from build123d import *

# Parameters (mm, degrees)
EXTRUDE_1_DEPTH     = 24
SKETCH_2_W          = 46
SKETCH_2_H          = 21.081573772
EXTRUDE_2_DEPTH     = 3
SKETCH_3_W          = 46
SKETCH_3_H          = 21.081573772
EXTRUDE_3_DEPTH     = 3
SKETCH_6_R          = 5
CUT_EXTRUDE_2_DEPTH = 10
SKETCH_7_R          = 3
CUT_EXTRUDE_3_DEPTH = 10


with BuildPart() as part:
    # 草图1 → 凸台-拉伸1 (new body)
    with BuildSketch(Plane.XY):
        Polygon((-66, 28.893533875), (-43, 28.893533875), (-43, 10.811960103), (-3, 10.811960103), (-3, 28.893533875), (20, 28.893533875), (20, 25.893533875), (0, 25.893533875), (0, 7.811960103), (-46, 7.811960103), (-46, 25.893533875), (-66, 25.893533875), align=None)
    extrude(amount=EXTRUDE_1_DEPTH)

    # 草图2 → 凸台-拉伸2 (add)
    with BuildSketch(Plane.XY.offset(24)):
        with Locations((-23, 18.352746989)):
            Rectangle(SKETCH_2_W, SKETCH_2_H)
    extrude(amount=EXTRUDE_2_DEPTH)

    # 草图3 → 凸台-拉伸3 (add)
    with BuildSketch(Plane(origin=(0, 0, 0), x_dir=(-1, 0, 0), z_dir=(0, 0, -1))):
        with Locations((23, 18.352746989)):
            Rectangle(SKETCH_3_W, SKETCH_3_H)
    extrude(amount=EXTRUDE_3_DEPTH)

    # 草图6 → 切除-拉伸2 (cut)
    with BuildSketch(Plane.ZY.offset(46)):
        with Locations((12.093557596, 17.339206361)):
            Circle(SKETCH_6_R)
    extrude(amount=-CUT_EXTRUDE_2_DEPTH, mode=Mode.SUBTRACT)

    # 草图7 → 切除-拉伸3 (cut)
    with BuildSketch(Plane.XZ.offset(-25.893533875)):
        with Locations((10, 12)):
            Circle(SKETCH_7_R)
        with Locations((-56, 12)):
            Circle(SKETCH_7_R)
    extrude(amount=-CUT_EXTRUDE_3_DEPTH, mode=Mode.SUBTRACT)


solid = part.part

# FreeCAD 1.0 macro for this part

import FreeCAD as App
import Part
import Sketcher

V = App.Vector

doc = App.newDocument("Part")
params = doc.addObject("Spreadsheet::Sheet", "Params")
for row, (alias, value) in enumerate([
    ("sketch1_width", "23 mm"),
    ("sketch1_width2", "20 mm"),
    ("sketch1_width3", "46 mm"),
    ("sketch1_height", "3 mm"),
    ("pad1_length", "24 mm"),
    ("sketch2_width", "46 mm"),
    ("pad2_length", "3 mm"),
    ("sketch3_width", "46 mm"),
    ("pad3_length", "3 mm"),
    ("sketch4_diameter", "10 mm"),
    ("pocket1_length", "10 mm"),
    ("sketch5_diameter", "6 mm"),
    ("pocket2_length", "10 mm"),
], start=1):
    params.set(f"A{row}", alias)
    params.set(f"B{row}", "=" + value)
    params.setAlias(f"B{row}", alias)

body = doc.addObject("PartDesign::Body", "Body")

sketch1 = doc.addObject("Sketcher::SketchObject", "Sketch")
body.addObject(sketch1)
sketch1.AttachmentSupport = (doc.XY_Plane, [""])
sketch1.MapMode = "FlatFace"
sketch1.addGeometry([
    Part.LineSegment(V(-43, 28.9, 0), V(-66, 28.9, 0)),
    Part.LineSegment(V(-66, 28.9, 0), V(-66, 25.9, 0)),
    Part.LineSegment(V(-66, 25.9, 0), V(-46, 25.9, 0)),
    Part.LineSegment(V(-46, 25.9, 0), V(-46, 7.8, 0)),
    Part.LineSegment(V(-46, 7.8, 0), V(0, 7.8, 0)),
    Part.LineSegment(V(0, 7.8, 0), V(0, 25.9, 0)),
    Part.LineSegment(V(0, 25.9, 0), V(20, 25.9, 0)),
    Part.LineSegment(V(20, 25.9, 0), V(20, 28.9, 0)),
    Part.LineSegment(V(20, 28.9, 0), V(-3, 28.9, 0)),
    Part.LineSegment(V(-3, 28.9, 0), V(-3, 10.8, 0)),
    Part.LineSegment(V(-3, 10.8, 0), V(-43, 10.8, 0)),
    Part.LineSegment(V(-43, 10.8, 0), V(-43, 28.9, 0)),
], False)
sketch1.addConstraint([
    Sketcher.Constraint("Coincident", 0, 2, 1, 1),
    Sketcher.Constraint("Coincident", 1, 2, 2, 1),
    Sketcher.Constraint("Coincident", 2, 2, 3, 1),
    Sketcher.Constraint("Coincident", 3, 2, 4, 1),
    Sketcher.Constraint("Coincident", 4, 2, 5, 1),
    Sketcher.Constraint("Coincident", 5, 2, 6, 1),
    Sketcher.Constraint("Coincident", 6, 2, 7, 1),
    Sketcher.Constraint("Coincident", 7, 2, 8, 1),
    Sketcher.Constraint("Coincident", 8, 2, 9, 1),
    Sketcher.Constraint("Coincident", 9, 2, 10, 1),
    Sketcher.Constraint("Coincident", 10, 2, 11, 1),
    Sketcher.Constraint("Coincident", 11, 2, 0, 1),
    Sketcher.Constraint("Horizontal", 0),
    Sketcher.Constraint("Vertical", 1),
    Sketcher.Constraint("Horizontal", 2),
    Sketcher.Constraint("Vertical", 3),
    Sketcher.Constraint("Horizontal", 4),
    Sketcher.Constraint("Vertical", 5),
    Sketcher.Constraint("Horizontal", 6),
    Sketcher.Constraint("Vertical", 7),
    Sketcher.Constraint("Horizontal", 8),
    Sketcher.Constraint("Vertical", 9),
    Sketcher.Constraint("Horizontal", 10),
    Sketcher.Constraint("Vertical", 11),
    Sketcher.Constraint("PointOnObject", 4, 2, -2),
    Sketcher.Constraint("Horizontal", 2, 2, 5, 2),
    Sketcher.Constraint("Horizontal", 0, 2, 7, 2),
    Sketcher.Constraint("Equal", 2, 6),
    Sketcher.Constraint("Equal", 0, 8),
    Sketcher.Constraint("Equal", 5, 9),
    Sketcher.Constraint("DistanceX", 0, 2, 0, 1, 23.0),
    Sketcher.Constraint("DistanceX", 2, 1, 2, 2, 20.0),
    Sketcher.Constraint("DistanceX", 4, 1, 4, 2, 46.0),
    Sketcher.Constraint("DistanceY", 1, 2, 1, 1, 3.0),
    Sketcher.Constraint("DistanceY", 3, 2, 3, 1, 18.081574),
    Sketcher.Constraint("DistanceY", -1, 1, 3, 2, 7.81196),
])
sketch1.setExpression("Constraints[30]", "Params.sketch1_width")
sketch1.setExpression("Constraints[31]", "Params.sketch1_width2")
sketch1.setExpression("Constraints[32]", "Params.sketch1_width3")
sketch1.setExpression("Constraints[33]", "Params.sketch1_height")
pad1 = doc.addObject("PartDesign::Pad", "Pad")
body.addObject(pad1)
pad1.Profile = sketch1
pad1.setExpression("Length", "Params.pad1_length")

sketch2 = doc.addObject("Sketcher::SketchObject", "Sketch001")
body.addObject(sketch2)
sketch2.AttachmentSupport = (doc.XY_Plane, [""])
sketch2.MapMode = "FlatFace"
sketch2.AttachmentOffset = App.Placement(V(0, 0, 24), App.Rotation())
sketch2.addGeometry([
    Part.LineSegment(V(-46, 29, 0), V(-46, 8, 0)),
    Part.LineSegment(V(-46, 8, 0), V(0, 8, 0)),
    Part.LineSegment(V(0, 8, 0), V(0, 29, 0)),
    Part.LineSegment(V(0, 29, 0), V(-46, 29, 0)),
], False)
sketch2.addConstraint([
    Sketcher.Constraint("Coincident", 0, 2, 1, 1),
    Sketcher.Constraint("Coincident", 1, 2, 2, 1),
    Sketcher.Constraint("Coincident", 2, 2, 3, 1),
    Sketcher.Constraint("Coincident", 3, 2, 0, 1),
    Sketcher.Constraint("Vertical", 0),
    Sketcher.Constraint("Horizontal", 1),
    Sketcher.Constraint("Vertical", 2),
    Sketcher.Constraint("Horizontal", 3),
    Sketcher.Constraint("PointOnObject", 1, 2, -2),
    Sketcher.Constraint("DistanceX", 1, 1, 1, 2, 46.0),
    Sketcher.Constraint("DistanceY", 0, 2, 0, 1, 21.081574),
    Sketcher.Constraint("DistanceY", -1, 1, 0, 2, 7.81196),
])
sketch2.setExpression("Constraints[9]", "Params.sketch2_width")
pad2 = doc.addObject("PartDesign::Pad", "Pad001")
body.addObject(pad2)
pad2.Profile = sketch2
pad2.setExpression("Length", "Params.pad2_length")

sketch3 = doc.addObject("Sketcher::SketchObject", "Sketch002")
body.addObject(sketch3)
sketch3.AttachmentSupport = (doc.XY_Plane, [""])
sketch3.MapMode = "FlatFace"
sketch3.addGeometry([
    Part.LineSegment(V(0, 29, 0), V(0, 8, 0)),
    Part.LineSegment(V(0, 8, 0), V(-46, 8, 0)),
    Part.LineSegment(V(-46, 8, 0), V(-46, 29, 0)),
    Part.LineSegment(V(-46, 29, 0), V(0, 29, 0)),
], False)
sketch3.addConstraint([
    Sketcher.Constraint("Coincident", 0, 2, 1, 1),
    Sketcher.Constraint("Coincident", 1, 2, 2, 1),
    Sketcher.Constraint("Coincident", 2, 2, 3, 1),
    Sketcher.Constraint("Coincident", 3, 2, 0, 1),
    Sketcher.Constraint("Vertical", 0),
    Sketcher.Constraint("Horizontal", 1),
    Sketcher.Constraint("Vertical", 2),
    Sketcher.Constraint("Horizontal", 3),
    Sketcher.Constraint("PointOnObject", 0, 2, -2),
    Sketcher.Constraint("DistanceX", 1, 2, 1, 1, 46.0),
    Sketcher.Constraint("DistanceY", 0, 2, 0, 1, 21.081574),
    Sketcher.Constraint("DistanceY", -1, 1, 0, 2, 7.81196),
])
sketch3.setExpression("Constraints[9]", "Params.sketch3_width")
pad3 = doc.addObject("PartDesign::Pad", "Pad002")
body.addObject(pad3)
pad3.Profile = sketch3
pad3.setExpression("Length", "Params.pad3_length")
pad3.Reversed = True

sketch4 = doc.addObject("Sketcher::SketchObject", "Sketch003")
body.addObject(sketch4)
sketch4.AttachmentSupport = (doc.YZ_Plane, [""])
sketch4.MapMode = "FlatFace"
sketch4.AttachmentOffset = App.Placement(V(0, 0, -46), App.Rotation())
sketch4.addGeometry(Part.Circle(V(17, 12, 0), V(0, 0, 1), 5), False)
sketch4.addConstraint([
    Sketcher.Constraint("Diameter", 0, 10.0),
    Sketcher.Constraint("DistanceX", -1, 1, 0, 3, 17.339206),
    Sketcher.Constraint("DistanceY", -1, 1, 0, 3, 12.093558),
])
sketch4.setExpression("Constraints[0]", "Params.sketch4_diameter")
pocket1 = doc.addObject("PartDesign::Pocket", "Pocket")
body.addObject(pocket1)
pocket1.Profile = sketch4
pocket1.setExpression("Length", "Params.pocket1_length")
pocket1.Reversed = True

sketch5 = doc.addObject("Sketcher::SketchObject", "Sketch004")
body.addObject(sketch5)
sketch5.AttachmentSupport = (doc.XZ_Plane, [""])
sketch5.MapMode = "FlatFace"
sketch5.AttachmentOffset = App.Placement(V(0, 0, -25.893534), App.Rotation())
sketch5.addGeometry([
    Part.Circle(V(10, 12, 0), V(0, 0, 1), 3),
    Part.Circle(V(-56, 12, 0), V(0, 0, 1), 3),
], False)
sketch5.addConstraint([
    Sketcher.Constraint("Equal", 0, 1),
    Sketcher.Constraint("Horizontal", 0, 3, 1, 3),
    Sketcher.Constraint("Diameter", 0, 6.0),
    Sketcher.Constraint("DistanceX", -1, 1, 0, 3, 10.0),
    Sketcher.Constraint("DistanceY", -1, 1, 0, 3, 12.0),
    Sketcher.Constraint("DistanceX", 1, 3, -1, 1, 56.0),
])
sketch5.setExpression("Constraints[2]", "Params.sketch5_diameter")
pocket2 = doc.addObject("PartDesign::Pocket", "Pocket001")
body.addObject(pocket2)
pocket2.Profile = sketch5
pocket2.setExpression("Length", "Params.pocket2_length")

doc.recompute()
